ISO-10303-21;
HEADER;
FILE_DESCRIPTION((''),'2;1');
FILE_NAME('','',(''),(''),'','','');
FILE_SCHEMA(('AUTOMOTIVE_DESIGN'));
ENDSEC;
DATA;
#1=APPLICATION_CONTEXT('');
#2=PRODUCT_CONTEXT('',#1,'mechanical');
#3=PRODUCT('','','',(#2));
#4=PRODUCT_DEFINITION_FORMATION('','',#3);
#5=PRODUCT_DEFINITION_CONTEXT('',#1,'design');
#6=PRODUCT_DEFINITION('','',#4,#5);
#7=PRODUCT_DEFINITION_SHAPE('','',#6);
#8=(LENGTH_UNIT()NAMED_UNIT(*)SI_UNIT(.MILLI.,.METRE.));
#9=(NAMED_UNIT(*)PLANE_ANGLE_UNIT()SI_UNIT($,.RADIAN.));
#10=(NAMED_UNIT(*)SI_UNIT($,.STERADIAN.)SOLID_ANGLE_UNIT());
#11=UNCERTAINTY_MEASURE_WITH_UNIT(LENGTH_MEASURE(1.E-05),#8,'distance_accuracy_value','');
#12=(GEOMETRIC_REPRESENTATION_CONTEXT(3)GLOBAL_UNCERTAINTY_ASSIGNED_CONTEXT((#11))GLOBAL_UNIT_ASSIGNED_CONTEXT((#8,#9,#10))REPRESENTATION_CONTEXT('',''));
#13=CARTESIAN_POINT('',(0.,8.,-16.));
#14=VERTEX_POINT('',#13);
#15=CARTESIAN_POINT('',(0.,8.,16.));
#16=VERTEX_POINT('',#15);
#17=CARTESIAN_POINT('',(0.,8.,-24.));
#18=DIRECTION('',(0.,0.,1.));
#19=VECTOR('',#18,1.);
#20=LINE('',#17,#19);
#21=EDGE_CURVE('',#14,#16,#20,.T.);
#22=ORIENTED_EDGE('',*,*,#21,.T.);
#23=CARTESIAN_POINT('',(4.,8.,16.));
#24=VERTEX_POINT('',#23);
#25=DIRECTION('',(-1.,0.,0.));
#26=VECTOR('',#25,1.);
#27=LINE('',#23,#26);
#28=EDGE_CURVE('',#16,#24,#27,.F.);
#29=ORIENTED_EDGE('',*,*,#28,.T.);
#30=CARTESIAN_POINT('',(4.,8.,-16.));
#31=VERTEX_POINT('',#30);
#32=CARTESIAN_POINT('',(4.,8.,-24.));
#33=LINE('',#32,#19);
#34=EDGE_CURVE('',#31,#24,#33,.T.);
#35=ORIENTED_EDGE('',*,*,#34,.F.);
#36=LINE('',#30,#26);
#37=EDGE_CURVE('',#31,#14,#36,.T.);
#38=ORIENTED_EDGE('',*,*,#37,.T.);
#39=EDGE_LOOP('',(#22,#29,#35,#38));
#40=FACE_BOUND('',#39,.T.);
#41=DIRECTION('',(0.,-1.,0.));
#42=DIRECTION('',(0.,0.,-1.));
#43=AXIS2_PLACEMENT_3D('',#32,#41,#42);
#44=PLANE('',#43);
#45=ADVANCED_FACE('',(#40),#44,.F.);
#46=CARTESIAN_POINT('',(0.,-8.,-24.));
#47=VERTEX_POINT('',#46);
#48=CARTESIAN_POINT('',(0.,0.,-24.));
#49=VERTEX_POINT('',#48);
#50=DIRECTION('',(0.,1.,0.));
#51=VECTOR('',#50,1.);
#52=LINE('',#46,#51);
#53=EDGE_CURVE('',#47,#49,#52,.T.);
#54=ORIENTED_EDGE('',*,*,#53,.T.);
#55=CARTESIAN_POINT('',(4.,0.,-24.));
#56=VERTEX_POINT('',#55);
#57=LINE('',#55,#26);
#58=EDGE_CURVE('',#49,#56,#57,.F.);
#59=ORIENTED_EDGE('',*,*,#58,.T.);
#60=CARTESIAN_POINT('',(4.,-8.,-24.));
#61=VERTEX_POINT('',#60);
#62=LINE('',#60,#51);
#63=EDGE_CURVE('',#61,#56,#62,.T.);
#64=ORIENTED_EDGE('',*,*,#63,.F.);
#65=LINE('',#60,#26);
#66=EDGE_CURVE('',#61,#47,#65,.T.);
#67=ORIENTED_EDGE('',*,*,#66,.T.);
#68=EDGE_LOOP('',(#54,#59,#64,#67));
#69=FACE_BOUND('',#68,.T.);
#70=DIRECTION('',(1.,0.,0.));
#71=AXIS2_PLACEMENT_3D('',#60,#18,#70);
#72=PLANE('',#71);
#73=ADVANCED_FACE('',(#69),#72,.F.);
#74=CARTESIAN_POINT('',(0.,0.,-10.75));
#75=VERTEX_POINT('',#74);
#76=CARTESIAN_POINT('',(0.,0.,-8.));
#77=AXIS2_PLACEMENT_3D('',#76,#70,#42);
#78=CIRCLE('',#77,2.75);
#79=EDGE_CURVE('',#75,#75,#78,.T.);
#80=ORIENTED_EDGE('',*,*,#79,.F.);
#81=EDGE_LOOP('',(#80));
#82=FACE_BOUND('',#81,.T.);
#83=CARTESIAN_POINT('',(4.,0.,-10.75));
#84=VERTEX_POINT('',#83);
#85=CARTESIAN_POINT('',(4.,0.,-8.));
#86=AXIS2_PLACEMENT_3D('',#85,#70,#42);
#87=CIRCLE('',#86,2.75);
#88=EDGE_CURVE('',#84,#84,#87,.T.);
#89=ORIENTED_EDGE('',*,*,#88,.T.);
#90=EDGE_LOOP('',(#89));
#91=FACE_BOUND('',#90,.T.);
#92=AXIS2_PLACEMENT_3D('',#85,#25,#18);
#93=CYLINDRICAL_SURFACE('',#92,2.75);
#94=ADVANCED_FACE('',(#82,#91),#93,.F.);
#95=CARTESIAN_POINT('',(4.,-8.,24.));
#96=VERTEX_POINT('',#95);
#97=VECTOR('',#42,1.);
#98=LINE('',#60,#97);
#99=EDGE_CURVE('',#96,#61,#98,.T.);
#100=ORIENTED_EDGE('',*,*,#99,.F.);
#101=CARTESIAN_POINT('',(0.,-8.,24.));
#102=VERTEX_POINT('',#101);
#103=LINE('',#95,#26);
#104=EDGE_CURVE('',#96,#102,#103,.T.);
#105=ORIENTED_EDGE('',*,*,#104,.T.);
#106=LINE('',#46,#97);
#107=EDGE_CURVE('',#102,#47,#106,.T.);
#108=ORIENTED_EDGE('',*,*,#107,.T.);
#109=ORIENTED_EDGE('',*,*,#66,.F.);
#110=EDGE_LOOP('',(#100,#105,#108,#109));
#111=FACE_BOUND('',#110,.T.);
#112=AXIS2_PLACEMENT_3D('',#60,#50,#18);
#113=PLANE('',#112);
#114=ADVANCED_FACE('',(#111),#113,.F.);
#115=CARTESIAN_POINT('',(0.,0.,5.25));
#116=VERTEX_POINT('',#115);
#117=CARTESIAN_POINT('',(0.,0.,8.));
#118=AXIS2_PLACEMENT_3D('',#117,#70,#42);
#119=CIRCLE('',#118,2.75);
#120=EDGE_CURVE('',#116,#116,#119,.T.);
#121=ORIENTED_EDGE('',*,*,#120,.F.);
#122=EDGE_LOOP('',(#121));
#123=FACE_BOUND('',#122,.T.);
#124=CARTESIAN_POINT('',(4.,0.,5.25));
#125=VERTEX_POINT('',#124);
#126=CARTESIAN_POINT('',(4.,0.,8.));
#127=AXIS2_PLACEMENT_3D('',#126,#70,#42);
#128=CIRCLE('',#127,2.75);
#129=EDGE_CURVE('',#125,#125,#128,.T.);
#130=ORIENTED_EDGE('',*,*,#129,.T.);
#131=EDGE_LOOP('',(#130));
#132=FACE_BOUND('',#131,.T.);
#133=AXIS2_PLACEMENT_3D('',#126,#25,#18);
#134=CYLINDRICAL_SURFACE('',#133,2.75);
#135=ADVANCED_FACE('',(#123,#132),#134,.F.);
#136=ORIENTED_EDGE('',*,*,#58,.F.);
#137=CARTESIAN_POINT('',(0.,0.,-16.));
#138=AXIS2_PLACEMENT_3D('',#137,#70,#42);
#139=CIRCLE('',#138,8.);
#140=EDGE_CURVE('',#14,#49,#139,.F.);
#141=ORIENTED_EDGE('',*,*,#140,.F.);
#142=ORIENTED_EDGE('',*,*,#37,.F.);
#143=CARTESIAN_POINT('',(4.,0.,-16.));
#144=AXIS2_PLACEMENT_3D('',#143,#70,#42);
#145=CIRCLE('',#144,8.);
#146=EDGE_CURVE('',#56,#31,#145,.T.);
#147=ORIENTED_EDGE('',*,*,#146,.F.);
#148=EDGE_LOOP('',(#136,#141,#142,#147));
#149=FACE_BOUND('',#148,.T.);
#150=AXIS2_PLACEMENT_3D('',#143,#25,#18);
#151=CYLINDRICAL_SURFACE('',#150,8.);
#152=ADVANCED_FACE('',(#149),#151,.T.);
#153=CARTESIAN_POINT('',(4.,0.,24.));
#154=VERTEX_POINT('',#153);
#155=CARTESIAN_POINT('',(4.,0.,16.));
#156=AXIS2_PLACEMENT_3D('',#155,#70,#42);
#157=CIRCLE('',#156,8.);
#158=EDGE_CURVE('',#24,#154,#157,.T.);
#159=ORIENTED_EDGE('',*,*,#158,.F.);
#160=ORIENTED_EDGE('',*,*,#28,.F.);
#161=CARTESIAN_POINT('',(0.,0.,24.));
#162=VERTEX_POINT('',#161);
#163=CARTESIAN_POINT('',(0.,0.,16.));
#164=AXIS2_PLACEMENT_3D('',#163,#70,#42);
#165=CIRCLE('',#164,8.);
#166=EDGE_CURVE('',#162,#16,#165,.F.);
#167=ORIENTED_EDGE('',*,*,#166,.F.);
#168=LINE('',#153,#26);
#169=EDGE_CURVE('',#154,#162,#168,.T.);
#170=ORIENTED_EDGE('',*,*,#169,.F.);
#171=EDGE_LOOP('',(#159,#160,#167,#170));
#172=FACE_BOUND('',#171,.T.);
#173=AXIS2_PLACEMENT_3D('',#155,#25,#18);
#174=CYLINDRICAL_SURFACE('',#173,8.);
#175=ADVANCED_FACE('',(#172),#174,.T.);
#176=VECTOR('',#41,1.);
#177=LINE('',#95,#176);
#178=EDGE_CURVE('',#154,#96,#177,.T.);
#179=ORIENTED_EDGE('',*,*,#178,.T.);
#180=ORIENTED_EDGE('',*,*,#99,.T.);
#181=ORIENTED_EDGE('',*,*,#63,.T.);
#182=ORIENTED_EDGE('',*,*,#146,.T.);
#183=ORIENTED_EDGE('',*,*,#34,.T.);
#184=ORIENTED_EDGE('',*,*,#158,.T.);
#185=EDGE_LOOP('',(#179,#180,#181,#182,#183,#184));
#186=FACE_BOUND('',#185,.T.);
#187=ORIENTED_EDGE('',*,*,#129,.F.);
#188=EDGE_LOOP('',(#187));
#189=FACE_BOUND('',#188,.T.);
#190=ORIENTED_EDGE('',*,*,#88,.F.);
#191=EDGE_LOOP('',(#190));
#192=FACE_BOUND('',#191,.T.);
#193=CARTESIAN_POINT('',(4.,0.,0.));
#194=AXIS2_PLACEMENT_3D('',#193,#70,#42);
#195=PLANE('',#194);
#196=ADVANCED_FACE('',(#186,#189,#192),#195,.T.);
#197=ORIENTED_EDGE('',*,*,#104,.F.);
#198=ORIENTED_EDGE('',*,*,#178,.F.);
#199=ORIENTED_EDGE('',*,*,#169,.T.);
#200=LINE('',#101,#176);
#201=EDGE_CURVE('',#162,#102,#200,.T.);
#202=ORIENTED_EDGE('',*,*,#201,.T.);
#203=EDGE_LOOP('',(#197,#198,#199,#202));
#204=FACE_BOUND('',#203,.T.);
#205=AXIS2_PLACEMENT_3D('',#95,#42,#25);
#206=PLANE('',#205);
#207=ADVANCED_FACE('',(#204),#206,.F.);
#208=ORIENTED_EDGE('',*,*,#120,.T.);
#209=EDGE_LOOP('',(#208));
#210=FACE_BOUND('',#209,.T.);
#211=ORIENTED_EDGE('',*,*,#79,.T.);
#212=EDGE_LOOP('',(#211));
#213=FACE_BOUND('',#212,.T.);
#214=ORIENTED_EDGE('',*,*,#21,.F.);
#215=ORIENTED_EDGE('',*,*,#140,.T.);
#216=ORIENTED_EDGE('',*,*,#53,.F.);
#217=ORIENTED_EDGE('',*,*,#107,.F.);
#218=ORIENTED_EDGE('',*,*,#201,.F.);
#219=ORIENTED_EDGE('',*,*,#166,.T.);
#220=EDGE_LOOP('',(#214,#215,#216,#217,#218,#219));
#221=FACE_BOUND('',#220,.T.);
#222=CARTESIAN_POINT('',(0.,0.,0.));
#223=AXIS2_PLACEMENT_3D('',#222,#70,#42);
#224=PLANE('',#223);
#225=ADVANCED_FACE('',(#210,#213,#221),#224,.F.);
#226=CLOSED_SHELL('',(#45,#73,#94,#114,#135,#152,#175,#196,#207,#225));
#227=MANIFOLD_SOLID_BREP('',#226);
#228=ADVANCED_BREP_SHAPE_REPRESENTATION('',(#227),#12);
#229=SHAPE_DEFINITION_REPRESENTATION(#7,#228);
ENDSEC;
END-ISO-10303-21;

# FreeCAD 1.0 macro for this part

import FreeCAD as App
import Part
import Sketcher


def edges_at(feature, points):
    """Names of the edges that pass closest to the given points."""
    edges = feature.Shape.Edges
    near = lambda p: min(range(len(edges)), key=lambda i: edges[i].distToShape(Part.Vertex(*p))[0])
    return sorted({f"Edge{near(p) + 1}" for p in points})


def add_polygon(sketch, points):
    """Adds a closed chain of lines whose ends are joined by coincident constraints."""
    first, n = sketch.GeometryCount, len(points)
    for a, b in zip(points, points[1:] + points[:1]):
        sketch.addGeometry(Part.LineSegment(App.Vector(*a, 0), App.Vector(*b, 0)), False)
    for i in range(n):
        sketch.addConstraint(Sketcher.Constraint("Coincident", first + i, 2, first + (i + 1) % n, 1))

doc = App.newDocument("Part")
body = doc.addObject("PartDesign::Body", "Body")

sketch1 = body.newObject("Sketcher::SketchObject", "Sketch")
sketch1.AttachmentSupport = (doc.getObject("YZ_Plane"), [""])
sketch1.MapMode = "FlatFace"
add_polygon(sketch1, [(8, 24), (-8, 24), (-8, -24), (8, -24)])
sketch1.addGeometry(Part.Circle(App.Vector(0, 8, 0), App.Vector(0, 0, 1), 2.8), False)
sketch1.addGeometry(Part.Circle(App.Vector(0, -8, 0), App.Vector(0, 0, 1), 2.8), False)
sketch1.addConstraint(Sketcher.Constraint("Horizontal", 0))
sketch1.addConstraint(Sketcher.Constraint("Vertical", 1))
sketch1.addConstraint(Sketcher.Constraint("Horizontal", 2))
sketch1.addConstraint(Sketcher.Constraint("Vertical", 3))
sketch1.addConstraint(Sketcher.Constraint("Equal", 4, 5))
sketch1.addConstraint(Sketcher.Constraint("Symmetric", 4, 3, 5, 3, -1, 1))
sketch1.addConstraint(Sketcher.Constraint("Symmetric", 0, 2, 2, 2, -1, 1))
sketch1.addConstraint(Sketcher.Constraint("PointOnObject", 4, 3, -2))
sketch1.addConstraint(Sketcher.Constraint("Diameter", 4, 5.5))
sketch1.addConstraint(Sketcher.Constraint("DistanceX", 0, 2, 0, 1, 16.0))
sketch1.addConstraint(Sketcher.Constraint("DistanceY", 1, 2, 1, 1, 48.0))
sketch1.addConstraint(Sketcher.Constraint("DistanceY", -1, 1, 4, 3, 8.0))
pad1 = body.newObject("PartDesign::Pad", "Pad")
pad1.Profile = sketch1
pad1.Length = 4
doc.recompute()

fillet = body.newObject("PartDesign::Fillet", "Fillet")
fillet.Base = (pad1, edges_at(pad1, [(2, 8, 24), (2, 8, -24)]))
fillet.Radius = 8

doc.recompute()
